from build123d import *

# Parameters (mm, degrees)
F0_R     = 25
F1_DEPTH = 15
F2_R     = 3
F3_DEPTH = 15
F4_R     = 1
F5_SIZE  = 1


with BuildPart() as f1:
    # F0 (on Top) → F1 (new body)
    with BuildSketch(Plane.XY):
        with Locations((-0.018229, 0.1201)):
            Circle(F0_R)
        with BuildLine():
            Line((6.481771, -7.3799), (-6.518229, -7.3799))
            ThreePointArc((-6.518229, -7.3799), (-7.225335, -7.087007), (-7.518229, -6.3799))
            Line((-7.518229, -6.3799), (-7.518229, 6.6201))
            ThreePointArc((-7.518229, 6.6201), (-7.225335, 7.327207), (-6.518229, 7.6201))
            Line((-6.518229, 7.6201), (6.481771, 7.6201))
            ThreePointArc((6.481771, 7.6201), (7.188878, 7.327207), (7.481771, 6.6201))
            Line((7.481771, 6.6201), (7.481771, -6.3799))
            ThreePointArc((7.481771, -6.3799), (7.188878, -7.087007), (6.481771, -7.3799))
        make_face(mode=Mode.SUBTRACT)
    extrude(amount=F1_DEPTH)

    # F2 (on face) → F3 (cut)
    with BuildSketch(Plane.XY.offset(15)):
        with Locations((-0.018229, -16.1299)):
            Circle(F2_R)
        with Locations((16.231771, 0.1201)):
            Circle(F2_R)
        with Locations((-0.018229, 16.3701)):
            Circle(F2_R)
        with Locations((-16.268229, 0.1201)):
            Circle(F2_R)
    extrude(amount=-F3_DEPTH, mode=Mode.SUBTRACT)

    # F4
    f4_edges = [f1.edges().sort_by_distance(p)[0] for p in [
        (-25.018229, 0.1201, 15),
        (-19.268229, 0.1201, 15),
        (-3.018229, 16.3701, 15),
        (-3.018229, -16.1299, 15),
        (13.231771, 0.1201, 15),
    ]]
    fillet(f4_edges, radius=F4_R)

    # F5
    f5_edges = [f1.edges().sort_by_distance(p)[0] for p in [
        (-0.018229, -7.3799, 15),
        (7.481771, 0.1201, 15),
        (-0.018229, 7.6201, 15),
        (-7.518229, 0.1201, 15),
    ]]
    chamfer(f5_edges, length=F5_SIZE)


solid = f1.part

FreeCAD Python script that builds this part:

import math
import FreeCAD as App
import Part
import Sketcher

V = App.Vector
Q = App.Units.Quantity


def edges_at(feature, points):
    """Names of the edges that pass closest to the given points."""
    edges = feature.Shape.Edges
    near = lambda p: min(range(len(edges)), key=lambda i: edges[i].distToShape(Part.Vertex(*p))[0])
    return sorted({f"Edge{near(p) + 1}" for p in points})

doc = App.newDocument("Part")
body = doc.addObject("PartDesign::Body", "Body")

# Sketch on XY plane
sketch1 = body.newObject("Sketcher::SketchObject", "Sketch")
sketch1.AttachmentSupport = (doc.getObject("XY_Plane"), [""])
sketch1.MapMode = "FlatFace"
sketch1.addGeometry([
    Part.Circle(V(0, 0.1, 0), V(0, 0, 1), 25),  # 0
    Part.ArcOfCircle(Part.Circle(V(6.5, -6.4, 0), V(0, 0, 1), 1), math.radians(-90), math.radians(0)),  # 1
    Part.LineSegment(V(6.5, -7.4, 0), V(-6.5, -7.4, 0)),  # 2
    Part.ArcOfCircle(Part.Circle(V(-6.5, -6.4, 0), V(0, 0, 1), 1), math.radians(-180), math.radians(-90)),  # 3
    Part.LineSegment(V(-7.5, -6.4, 0), V(-7.5, 6.6, 0)),  # 4
    Part.ArcOfCircle(Part.Circle(V(-6.5, 6.6, 0), V(0, 0, 1), 1), math.radians(90), math.radians(180)),  # 5
    Part.LineSegment(V(-6.5, 7.6, 0), V(6.5, 7.6, 0)),  # 6
    Part.ArcOfCircle(Part.Circle(V(6.5, 6.6, 0), V(0, 0, 1), 1), math.radians(0), math.radians(90)),  # 7
    Part.LineSegment(V(7.5, 6.6, 0), V(7.5, -6.4, 0)),  # 8
], False)
sketch1.addConstraint([
    Sketcher.Constraint("Tangent", 1, 1, 2, 1),
    Sketcher.Constraint("Tangent", 2, 2, 3, 2),
    Sketcher.Constraint("Tangent", 3, 1, 4, 1),
    Sketcher.Constraint("Tangent", 4, 2, 5, 2),
    Sketcher.Constraint("Tangent", 5, 1, 6, 1),
    Sketcher.Constraint("Tangent", 6, 2, 7, 2),
    Sketcher.Constraint("Tangent", 7, 1, 8, 1),
    Sketcher.Constraint("Tangent", 8, 2, 1, 2),
    Sketcher.Constraint("Horizontal", 2),
    Sketcher.Constraint("Vertical", 4),
    Sketcher.Constraint("Horizontal", 6),
    Sketcher.Constraint("Vertical", 8),
    Sketcher.Constraint("Equal", 1, 3),
    Sketcher.Constraint("Equal", 3, 5),
    Sketcher.Constraint("Equal", 5, 7),
    Sketcher.Constraint("Equal", 6, 4),
    Sketcher.Constraint("Diameter", 0, Q("50 mm")),
    Sketcher.Constraint("Radius", 1, Q("0.999999 mm")),
    Sketcher.Constraint("DistanceX", 2, 2, 2, 1, Q("13 mm")),
    Sketcher.Constraint("DistanceX", 0, 3, 1, 3, Q("6.500001 mm")),
    Sketcher.Constraint("DistanceY", 1, 3, 0, 3, Q("6.500001 mm")),
    Sketcher.Constraint("DistanceY", -1, 1, 0, 3, Q("0.1201 mm")),
    Sketcher.Constraint("DistanceX", 0, 3, -1, 1, Q("0.018229 mm")),
])
pad1 = body.newObject("PartDesign::Pad", "Pad")
pad1.Profile = sketch1
pad1.Length = 15

# Sketch on XY plane
sketch2 = body.newObject("Sketcher::SketchObject", "Sketch001")
sketch2.AttachmentSupport = (doc.getObject("XY_Plane"), [""])
sketch2.MapMode = "FlatFace"
sketch2.AttachmentOffset = App.Placement(V(0, 0, 15), App.Rotation())
sketch2.addGeometry([
    Part.Circle(V(0, -16.1, 0), V(0, 0, 1), 3),
    Part.Circle(V(16.2, 0.1, 0), V(0, 0, 1), 3),
    Part.Circle(V(0, 16.4, 0), V(0, 0, 1), 3),
    Part.Circle(V(-16.3, 0.1, 0), V(0, 0, 1), 3),
], False)
sketch2.addConstraint([
    Sketcher.Constraint("Equal", 0, 1),
    Sketcher.Constraint("Equal", 1, 2),
    Sketcher.Constraint("Equal", 2, 3),
    Sketcher.Constraint("Horizontal", 1, 3, 3, 3),
    Sketcher.Constraint("Vertical", 0, 3, 2, 3),
    Sketcher.Constraint("Diameter", 0, Q("6 mm")),
    Sketcher.Constraint("DistanceY", 0, 3, 2, 3, Q("32.5 mm")),
    Sketcher.Constraint("DistanceX", 3, 3, 1, 3, Q("32.5 mm")),
    Sketcher.Constraint("DistanceX", 0, 3, 1, 3, Q("16.25 mm")),
    Sketcher.Constraint("DistanceY", 0, 3, 1, 3, Q("16.25 mm")),
    Sketcher.Constraint("DistanceY", 0, 3, -1, 1, Q("16.1299 mm")),
    Sketcher.Constraint("DistanceX", 0, 3, -1, 1, Q("0.018229 mm")),
])
pocket1 = body.newObject("PartDesign::Pocket", "Pocket")
pocket1.Profile = sketch2
pocket1.Length = 15
doc.recompute()

fillet = body.newObject("PartDesign::Fillet", "Fillet")
fillet.Base = (pocket1, edges_at(pocket1, [
    (-25.018, 0.12, 15),
    (-19.268, 0.12, 15),
    (-3.018, 16.37, 15),
    (-3.018, -16.13, 15),
    (13.232, 0.12, 15),
]))
fillet.Radius = 1
doc.recompute()

chamfer = body.newObject("PartDesign::Chamfer", "Chamfer")
chamfer.Base = (fillet, edges_at(fillet, [
    (-0.018, -7.38, 15),
    (7.482, 0.12, 15),
    (-0.018, 7.62, 15),
    (-7.518, 0.12, 15),
]))
chamfer.Size = 1

doc.recompute()
